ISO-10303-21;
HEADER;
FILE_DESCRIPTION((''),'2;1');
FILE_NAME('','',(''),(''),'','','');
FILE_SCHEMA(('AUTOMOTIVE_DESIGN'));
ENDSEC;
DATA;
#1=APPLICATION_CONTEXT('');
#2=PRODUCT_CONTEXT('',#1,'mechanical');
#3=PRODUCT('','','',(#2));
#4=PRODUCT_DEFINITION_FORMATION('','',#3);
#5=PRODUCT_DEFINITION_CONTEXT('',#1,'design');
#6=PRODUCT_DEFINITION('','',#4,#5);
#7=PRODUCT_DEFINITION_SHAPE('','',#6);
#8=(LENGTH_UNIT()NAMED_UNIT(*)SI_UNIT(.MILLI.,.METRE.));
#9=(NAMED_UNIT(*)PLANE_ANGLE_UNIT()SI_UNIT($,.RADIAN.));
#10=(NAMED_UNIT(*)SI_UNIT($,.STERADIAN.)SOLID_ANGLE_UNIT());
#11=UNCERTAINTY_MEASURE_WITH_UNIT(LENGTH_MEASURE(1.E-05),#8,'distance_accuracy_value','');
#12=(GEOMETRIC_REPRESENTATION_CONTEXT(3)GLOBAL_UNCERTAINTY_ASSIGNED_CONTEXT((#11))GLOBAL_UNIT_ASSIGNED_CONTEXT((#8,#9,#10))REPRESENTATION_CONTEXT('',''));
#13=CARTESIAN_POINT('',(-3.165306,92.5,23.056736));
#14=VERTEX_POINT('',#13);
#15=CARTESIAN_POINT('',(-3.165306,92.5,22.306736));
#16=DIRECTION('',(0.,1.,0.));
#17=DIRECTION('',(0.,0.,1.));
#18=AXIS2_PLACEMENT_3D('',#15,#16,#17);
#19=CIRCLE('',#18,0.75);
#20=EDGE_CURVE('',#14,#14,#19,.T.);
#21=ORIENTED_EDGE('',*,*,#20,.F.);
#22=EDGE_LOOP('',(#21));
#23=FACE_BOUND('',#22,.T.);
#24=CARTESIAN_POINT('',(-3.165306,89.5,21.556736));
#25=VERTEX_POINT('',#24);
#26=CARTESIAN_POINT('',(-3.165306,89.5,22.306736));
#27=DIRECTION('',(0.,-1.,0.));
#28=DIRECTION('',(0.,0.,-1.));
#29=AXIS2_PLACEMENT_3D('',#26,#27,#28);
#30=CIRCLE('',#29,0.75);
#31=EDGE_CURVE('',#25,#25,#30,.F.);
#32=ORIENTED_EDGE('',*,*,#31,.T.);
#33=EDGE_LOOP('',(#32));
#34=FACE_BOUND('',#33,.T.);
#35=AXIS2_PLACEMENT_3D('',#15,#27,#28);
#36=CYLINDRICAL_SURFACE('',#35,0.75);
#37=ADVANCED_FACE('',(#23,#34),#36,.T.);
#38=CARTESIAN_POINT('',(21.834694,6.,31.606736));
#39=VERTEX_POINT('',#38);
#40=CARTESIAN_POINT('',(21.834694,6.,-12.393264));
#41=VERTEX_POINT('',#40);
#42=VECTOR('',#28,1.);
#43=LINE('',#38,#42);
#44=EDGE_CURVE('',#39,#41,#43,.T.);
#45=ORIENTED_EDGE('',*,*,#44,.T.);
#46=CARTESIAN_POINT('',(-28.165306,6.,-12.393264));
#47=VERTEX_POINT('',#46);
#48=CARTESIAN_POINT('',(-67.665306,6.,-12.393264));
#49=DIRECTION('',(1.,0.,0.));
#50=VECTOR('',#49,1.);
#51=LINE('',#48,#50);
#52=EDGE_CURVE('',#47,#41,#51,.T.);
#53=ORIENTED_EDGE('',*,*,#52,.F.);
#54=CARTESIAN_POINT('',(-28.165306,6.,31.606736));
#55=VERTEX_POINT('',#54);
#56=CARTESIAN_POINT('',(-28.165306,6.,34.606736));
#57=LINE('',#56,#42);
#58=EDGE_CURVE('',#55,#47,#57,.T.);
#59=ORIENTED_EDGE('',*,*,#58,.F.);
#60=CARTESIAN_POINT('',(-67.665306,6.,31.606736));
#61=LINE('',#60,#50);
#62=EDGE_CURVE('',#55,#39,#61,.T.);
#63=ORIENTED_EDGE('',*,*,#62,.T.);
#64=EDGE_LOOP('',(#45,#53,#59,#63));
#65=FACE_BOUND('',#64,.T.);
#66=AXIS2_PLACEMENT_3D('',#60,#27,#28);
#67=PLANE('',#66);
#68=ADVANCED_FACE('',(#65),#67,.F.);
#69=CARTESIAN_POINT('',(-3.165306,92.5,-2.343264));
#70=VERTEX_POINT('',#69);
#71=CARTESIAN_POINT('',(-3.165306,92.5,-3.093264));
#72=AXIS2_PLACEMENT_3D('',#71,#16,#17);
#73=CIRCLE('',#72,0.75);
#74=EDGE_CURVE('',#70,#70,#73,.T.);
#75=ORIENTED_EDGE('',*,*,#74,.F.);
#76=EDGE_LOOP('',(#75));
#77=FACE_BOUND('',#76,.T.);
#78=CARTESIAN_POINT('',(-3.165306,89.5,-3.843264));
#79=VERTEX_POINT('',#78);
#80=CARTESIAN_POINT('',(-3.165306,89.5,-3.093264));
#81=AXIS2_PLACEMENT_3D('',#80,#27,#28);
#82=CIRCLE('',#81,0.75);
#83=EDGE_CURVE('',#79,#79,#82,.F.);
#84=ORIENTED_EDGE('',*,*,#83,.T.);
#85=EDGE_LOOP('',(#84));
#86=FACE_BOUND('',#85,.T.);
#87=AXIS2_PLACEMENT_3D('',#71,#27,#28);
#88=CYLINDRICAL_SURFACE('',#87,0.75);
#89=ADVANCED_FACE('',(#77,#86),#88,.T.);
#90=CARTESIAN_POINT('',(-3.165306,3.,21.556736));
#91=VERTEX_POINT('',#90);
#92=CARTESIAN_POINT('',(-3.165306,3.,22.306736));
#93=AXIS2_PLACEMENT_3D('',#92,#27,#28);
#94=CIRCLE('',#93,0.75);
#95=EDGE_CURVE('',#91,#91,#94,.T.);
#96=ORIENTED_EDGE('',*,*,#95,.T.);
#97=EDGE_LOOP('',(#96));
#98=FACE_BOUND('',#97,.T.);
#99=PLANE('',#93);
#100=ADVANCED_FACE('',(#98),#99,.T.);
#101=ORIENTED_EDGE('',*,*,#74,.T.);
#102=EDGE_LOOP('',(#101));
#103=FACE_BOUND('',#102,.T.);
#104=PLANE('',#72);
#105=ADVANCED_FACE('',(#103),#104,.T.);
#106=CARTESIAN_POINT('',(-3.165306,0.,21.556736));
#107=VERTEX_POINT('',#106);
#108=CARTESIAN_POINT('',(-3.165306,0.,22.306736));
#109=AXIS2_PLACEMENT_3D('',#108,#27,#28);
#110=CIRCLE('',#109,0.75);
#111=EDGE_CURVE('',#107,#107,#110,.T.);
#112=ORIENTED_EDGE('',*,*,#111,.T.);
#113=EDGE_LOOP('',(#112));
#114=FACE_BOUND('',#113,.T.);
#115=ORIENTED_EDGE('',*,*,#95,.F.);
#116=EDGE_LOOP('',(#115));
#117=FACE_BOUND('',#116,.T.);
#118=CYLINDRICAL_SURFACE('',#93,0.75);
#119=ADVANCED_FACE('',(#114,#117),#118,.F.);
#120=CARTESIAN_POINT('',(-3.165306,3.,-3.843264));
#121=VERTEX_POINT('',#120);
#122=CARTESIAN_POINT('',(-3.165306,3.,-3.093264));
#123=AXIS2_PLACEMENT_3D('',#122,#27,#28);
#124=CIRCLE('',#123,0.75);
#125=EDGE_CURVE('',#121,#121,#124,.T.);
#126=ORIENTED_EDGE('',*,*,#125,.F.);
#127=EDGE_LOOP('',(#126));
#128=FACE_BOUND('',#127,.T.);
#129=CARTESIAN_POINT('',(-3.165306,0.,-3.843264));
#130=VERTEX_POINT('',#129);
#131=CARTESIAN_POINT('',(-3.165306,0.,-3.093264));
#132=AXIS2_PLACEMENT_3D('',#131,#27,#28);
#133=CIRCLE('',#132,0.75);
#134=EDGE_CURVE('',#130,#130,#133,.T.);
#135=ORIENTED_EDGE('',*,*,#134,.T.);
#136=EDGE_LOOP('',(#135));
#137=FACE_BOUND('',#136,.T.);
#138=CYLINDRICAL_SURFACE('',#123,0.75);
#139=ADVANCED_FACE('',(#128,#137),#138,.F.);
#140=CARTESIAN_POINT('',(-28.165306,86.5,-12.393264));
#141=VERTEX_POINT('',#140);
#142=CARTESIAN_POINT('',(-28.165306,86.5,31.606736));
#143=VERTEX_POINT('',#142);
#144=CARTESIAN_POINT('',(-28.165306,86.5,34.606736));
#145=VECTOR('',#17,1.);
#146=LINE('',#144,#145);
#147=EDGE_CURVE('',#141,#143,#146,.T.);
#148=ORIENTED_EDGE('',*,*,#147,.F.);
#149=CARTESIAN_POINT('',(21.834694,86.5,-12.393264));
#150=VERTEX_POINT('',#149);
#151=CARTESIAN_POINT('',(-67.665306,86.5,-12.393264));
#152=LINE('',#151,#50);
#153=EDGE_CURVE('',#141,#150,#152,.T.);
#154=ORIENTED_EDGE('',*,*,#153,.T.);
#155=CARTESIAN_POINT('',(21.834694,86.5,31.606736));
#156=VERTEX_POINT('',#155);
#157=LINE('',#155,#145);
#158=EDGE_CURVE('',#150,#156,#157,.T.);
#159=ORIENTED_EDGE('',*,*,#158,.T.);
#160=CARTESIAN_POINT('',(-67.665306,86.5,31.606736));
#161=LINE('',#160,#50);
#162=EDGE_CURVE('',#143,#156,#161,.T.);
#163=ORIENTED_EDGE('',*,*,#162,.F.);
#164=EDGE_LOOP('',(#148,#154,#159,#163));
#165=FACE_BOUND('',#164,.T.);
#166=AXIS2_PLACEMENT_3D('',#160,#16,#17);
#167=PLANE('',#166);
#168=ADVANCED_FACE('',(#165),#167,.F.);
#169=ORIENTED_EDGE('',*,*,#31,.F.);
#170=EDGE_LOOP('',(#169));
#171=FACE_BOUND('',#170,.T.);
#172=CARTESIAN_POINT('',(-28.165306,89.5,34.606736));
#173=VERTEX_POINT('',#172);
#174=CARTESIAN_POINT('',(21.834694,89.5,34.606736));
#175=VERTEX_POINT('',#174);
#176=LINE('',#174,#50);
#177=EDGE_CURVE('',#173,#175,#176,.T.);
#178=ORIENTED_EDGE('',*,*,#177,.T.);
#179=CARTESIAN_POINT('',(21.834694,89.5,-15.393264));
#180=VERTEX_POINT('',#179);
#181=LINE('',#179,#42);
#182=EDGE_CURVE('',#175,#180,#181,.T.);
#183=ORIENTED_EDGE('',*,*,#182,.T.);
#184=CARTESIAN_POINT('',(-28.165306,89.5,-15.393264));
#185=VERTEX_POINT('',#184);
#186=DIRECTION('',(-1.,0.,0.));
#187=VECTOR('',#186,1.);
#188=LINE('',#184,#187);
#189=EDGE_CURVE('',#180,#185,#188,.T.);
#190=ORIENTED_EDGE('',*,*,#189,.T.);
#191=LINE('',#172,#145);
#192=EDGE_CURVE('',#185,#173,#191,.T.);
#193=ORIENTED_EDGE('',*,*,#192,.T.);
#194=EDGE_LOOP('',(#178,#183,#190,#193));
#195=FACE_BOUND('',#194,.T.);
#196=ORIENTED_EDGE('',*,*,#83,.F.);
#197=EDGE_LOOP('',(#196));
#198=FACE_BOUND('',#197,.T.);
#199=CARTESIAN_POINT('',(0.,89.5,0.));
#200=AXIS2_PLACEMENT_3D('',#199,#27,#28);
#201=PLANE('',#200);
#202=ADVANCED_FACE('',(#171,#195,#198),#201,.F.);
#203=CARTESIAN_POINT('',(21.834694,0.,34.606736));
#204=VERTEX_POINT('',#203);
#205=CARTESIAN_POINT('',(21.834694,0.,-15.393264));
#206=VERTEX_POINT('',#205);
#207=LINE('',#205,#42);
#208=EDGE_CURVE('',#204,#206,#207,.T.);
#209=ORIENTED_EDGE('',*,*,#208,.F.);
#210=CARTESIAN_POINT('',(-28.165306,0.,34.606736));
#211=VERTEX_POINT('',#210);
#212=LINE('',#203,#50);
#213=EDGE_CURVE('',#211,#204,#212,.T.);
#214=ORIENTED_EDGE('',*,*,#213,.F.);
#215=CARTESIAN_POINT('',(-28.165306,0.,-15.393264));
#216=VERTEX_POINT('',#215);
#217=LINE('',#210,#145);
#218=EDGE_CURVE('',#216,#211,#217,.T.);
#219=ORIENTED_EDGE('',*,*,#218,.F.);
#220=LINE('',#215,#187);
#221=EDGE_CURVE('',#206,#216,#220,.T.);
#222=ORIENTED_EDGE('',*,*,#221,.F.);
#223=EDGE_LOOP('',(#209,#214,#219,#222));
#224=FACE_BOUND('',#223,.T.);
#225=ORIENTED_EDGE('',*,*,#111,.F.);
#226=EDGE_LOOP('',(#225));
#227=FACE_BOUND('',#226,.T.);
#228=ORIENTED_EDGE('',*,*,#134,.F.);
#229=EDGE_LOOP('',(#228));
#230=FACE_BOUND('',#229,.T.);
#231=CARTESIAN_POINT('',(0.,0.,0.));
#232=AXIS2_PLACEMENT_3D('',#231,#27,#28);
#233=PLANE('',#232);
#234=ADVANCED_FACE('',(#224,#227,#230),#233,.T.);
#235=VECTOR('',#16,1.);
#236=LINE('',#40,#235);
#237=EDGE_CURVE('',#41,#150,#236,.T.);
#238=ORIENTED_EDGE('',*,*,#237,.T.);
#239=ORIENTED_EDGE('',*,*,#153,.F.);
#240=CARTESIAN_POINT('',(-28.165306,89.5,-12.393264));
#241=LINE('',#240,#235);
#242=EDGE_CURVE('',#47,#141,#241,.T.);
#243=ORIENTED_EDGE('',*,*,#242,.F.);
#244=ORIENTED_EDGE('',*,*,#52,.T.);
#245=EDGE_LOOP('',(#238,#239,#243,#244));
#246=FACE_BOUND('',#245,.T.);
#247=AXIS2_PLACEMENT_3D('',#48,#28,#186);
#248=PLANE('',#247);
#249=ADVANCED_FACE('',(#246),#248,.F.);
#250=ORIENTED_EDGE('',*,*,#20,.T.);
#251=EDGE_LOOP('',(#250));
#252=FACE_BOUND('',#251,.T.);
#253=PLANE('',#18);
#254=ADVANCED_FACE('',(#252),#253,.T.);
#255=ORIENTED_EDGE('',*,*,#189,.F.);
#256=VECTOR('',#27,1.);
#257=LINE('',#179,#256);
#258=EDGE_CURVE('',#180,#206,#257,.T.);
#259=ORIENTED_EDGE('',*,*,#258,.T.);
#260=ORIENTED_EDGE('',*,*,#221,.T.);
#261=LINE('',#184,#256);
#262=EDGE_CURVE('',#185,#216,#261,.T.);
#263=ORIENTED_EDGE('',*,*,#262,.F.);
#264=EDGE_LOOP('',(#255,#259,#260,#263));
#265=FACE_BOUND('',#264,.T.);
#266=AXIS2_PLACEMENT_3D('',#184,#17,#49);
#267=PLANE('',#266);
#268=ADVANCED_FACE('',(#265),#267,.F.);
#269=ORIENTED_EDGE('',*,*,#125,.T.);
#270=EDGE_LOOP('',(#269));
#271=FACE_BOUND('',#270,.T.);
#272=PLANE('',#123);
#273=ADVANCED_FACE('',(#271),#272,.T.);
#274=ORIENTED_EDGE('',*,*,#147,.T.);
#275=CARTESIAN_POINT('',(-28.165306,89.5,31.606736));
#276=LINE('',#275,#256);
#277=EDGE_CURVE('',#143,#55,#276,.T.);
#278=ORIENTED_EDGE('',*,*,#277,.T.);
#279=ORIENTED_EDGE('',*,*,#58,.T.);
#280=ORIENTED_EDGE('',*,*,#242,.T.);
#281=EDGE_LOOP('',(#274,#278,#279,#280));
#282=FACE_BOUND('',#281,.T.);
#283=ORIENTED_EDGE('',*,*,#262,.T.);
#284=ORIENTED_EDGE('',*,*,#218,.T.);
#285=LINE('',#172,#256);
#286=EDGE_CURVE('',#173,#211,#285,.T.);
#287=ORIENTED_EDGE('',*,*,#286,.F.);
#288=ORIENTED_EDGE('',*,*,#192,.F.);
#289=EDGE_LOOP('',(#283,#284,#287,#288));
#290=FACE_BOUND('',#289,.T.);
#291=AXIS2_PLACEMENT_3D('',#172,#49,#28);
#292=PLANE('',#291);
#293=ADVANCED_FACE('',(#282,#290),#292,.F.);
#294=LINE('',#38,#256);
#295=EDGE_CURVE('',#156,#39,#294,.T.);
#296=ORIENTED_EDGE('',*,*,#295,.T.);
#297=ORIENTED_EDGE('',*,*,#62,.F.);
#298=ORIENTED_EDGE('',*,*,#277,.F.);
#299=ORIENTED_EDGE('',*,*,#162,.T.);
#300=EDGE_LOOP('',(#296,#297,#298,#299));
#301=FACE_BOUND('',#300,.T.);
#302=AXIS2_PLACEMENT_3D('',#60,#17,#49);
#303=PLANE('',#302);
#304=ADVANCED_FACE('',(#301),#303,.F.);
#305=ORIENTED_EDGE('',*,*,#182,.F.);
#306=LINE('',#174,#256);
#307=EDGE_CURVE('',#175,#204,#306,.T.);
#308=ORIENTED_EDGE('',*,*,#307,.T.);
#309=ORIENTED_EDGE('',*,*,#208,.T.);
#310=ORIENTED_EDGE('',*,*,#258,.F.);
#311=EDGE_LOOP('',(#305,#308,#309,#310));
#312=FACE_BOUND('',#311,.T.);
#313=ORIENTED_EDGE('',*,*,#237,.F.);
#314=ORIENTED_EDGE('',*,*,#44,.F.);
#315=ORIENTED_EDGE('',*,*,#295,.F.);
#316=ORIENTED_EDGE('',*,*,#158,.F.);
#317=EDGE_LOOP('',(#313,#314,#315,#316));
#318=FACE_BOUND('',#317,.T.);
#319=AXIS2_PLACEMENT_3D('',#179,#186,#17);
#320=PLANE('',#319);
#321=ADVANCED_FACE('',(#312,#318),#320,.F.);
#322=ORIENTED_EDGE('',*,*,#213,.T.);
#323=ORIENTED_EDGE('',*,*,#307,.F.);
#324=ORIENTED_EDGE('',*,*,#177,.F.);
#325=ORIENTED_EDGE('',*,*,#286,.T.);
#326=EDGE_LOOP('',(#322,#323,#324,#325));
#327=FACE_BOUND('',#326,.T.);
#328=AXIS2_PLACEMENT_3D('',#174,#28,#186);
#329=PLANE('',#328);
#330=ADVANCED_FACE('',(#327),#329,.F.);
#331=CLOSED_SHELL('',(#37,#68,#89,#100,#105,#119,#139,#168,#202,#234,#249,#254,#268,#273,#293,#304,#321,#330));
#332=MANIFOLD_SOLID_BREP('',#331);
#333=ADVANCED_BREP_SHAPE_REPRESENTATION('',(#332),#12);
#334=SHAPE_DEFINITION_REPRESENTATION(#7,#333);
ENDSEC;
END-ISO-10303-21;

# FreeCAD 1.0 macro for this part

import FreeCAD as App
import Part
import Sketcher

V = App.Vector

doc = App.newDocument("Part")
body = doc.addObject("PartDesign::Body", "Body")

# Sketch on XZ plane
sketch1 = body.newObject("Sketcher::SketchObject", "Sketch")
sketch1.AttachmentSupport = (doc.getObject("XZ_Plane"), [""])
sketch1.MapMode = "FlatFace"
sketch1.addGeometry(Part.LineSegment(V(-28, -15, 0), V(-28, 35, 0)), False)
sketch1.addGeometry(Part.LineSegment(V(-28, 35, 0), V(22, 35, 0)), False)
sketch1.addGeometry(Part.LineSegment(V(22, 35, 0), V(22, -15, 0)), False)
sketch1.addGeometry(Part.LineSegment(V(22, -15, 0), V(-28, -15, 0)), False)
sketch1.addConstraint(Sketcher.Constraint("Coincident", 0, 2, 1, 1))
sketch1.addConstraint(Sketcher.Constraint("Coincident", 1, 2, 2, 1))
sketch1.addConstraint(Sketcher.Constraint("Coincident", 2, 2, 3, 1))
sketch1.addConstraint(Sketcher.Constraint("Coincident", 3, 2, 0, 1))
sketch1.addConstraint(Sketcher.Constraint("Vertical", 0))
sketch1.addConstraint(Sketcher.Constraint("Horizontal", 1))
sketch1.addConstraint(Sketcher.Constraint("Vertical", 2))
sketch1.addConstraint(Sketcher.Constraint("Horizontal", 3))
sketch1.addConstraint(Sketcher.Constraint("Equal", 3, 0))
sketch1.addConstraint(Sketcher.Constraint("DistanceX", 1, 1, 1, 2, 50.0))
sketch1.addConstraint(Sketcher.Constraint("DistanceX", 0, 2, -1, 1, 28.165306))
sketch1.addConstraint(Sketcher.Constraint("DistanceY", -1, 1, 0, 2, 34.606736))
pad1 = body.newObject("PartDesign::Pad", "Pad")
pad1.Profile = sketch1
pad1.Length = 89.5
pad1.Reversed = True

# Sketch on YZ plane
sketch2 = body.newObject("Sketcher::SketchObject", "Sketch001")
sketch2.AttachmentSupport = (doc.getObject("YZ_Plane"), [""])
sketch2.MapMode = "FlatFace"
sketch2.AttachmentOffset = App.Placement(V(0, 0, 21.834694), App.Rotation())
sketch2.addGeometry(Part.LineSegment(V(86, 32, 0), V(6, 32, 0)), False)
sketch2.addGeometry(Part.LineSegment(V(6, 32, 0), V(6, -12, 0)), False)
sketch2.addGeometry(Part.LineSegment(V(6, -12, 0), V(86, -12, 0)), False)
sketch2.addGeometry(Part.LineSegment(V(86, -12, 0), V(86, 32, 0)), False)
sketch2.addConstraint(Sketcher.Constraint("Coincident", 0, 2, 1, 1))
sketch2.addConstraint(Sketcher.Constraint("Coincident", 1, 2, 2, 1))
sketch2.addConstraint(Sketcher.Constraint("Coincident", 2, 2, 3, 1))
sketch2.addConstraint(Sketcher.Constraint("Coincident", 3, 2, 0, 1))
sketch2.addConstraint(Sketcher.Constraint("Horizontal", 0))
sketch2.addConstraint(Sketcher.Constraint("Vertical", 1))
sketch2.addConstraint(Sketcher.Constraint("Horizontal", 2))
sketch2.addConstraint(Sketcher.Constraint("Vertical", 3))
sketch2.addConstraint(Sketcher.Constraint("DistanceY", 1, 2, 1, 1, 44.0))
sketch2.addConstraint(Sketcher.Constraint("DistanceX", 0, 2, 0, 1, 80.5))
sketch2.addConstraint(Sketcher.Constraint("DistanceX", -1, 1, 0, 2, 6.0))
sketch2.addConstraint(Sketcher.Constraint("DistanceY", -1, 1, 0, 2, 31.606736))
pocket1 = body.newObject("PartDesign::Pocket", "Pocket")
pocket1.Profile = sketch2
pocket1.Length = 89.5

# Sketch on XZ plane
sketch3 = body.newObject("Sketcher::SketchObject", "Sketch002")
sketch3.AttachmentSupport = (doc.getObject("XZ_Plane"), [""])
sketch3.MapMode = "FlatFace"
sketch3.addGeometry(Part.Circle(V(-3.2, 22.3, 0), V(0, 0, 1), 0.8), False)
sketch3.addGeometry(Part.Circle(V(-3.2, -3.1, 0), V(0, 0, 1), 0.8), False)
sketch3.addConstraint(Sketcher.Constraint("Equal", 0, 1))
sketch3.addConstraint(Sketcher.Constraint("Vertical", 0, 3, 1, 3))
sketch3.addConstraint(Sketcher.Constraint("Diameter", 0, 1.5))
sketch3.addConstraint(Sketcher.Constraint("DistanceY", 1, 3, 0, 3, 25.4))
sketch3.addConstraint(Sketcher.Constraint("DistanceX", 0, 3, -1, 1, 3.165306))
sketch3.addConstraint(Sketcher.Constraint("DistanceY", -1, 1, 0, 3, 22.306736))
pocket2 = body.newObject("PartDesign::Pocket", "Pocket001")
pocket2.Profile = sketch3
pocket2.Length = 3

# Sketch on XZ plane
sketch4 = body.newObject("Sketcher::SketchObject", "Sketch003")
sketch4.AttachmentSupport = (doc.getObject("XZ_Plane"), [""])
sketch4.MapMode = "FlatFace"
sketch4.AttachmentOffset = App.Placement(V(0, 0, -89.5), App.Rotation())
sketch4.addGeometry(Part.Circle(V(-3.2, -3.1, 0), V(0, 0, 1), 0.8), False)
sketch4.addGeometry(Part.Circle(V(-3.2, 22.3, 0), V(0, 0, 1), 0.8), False)
sketch4.addConstraint(Sketcher.Constraint("Equal", 0, 1))
sketch4.addConstraint(Sketcher.Constraint("Vertical", 0, 3, 1, 3))
sketch4.addConstraint(Sketcher.Constraint("Diameter", 0, 1.5))
sketch4.addConstraint(Sketcher.Constraint("DistanceY", 0, 3, 1, 3, 25.4))
sketch4.addConstraint(Sketcher.Constraint("DistanceX", 0, 3, -1, 1, 3.165306))
sketch4.addConstraint(Sketcher.Constraint("DistanceY", 0, 3, -1, 1, 3.093264))
pad2 = body.newObject("PartDesign::Pad", "Pad001")
pad2.Profile = sketch4
pad2.Length = 3
pad2.Reversed = True

doc.recompute()
